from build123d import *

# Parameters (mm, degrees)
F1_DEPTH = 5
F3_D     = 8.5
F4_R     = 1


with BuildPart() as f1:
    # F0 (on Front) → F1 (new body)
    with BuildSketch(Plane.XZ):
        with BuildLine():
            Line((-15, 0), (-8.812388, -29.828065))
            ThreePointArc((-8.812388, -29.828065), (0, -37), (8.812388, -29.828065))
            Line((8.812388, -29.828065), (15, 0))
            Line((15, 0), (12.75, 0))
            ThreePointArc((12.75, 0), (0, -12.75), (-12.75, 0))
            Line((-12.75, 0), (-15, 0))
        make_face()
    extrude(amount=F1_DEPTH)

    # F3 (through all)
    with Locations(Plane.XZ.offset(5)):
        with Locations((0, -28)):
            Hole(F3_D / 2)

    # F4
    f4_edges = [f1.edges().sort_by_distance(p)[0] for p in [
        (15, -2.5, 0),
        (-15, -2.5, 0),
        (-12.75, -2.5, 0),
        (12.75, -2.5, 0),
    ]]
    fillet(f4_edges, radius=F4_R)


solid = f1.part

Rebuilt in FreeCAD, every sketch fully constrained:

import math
import FreeCAD as App
import Part
import Sketcher

V = App.Vector
Q = App.Units.Quantity


def edges_at(feature, points):
    """Names of the edges that pass closest to the given points."""
    edges = feature.Shape.Edges
    near = lambda p: min(range(len(edges)), key=lambda i: edges[i].distToShape(Part.Vertex(*p))[0])
    return sorted({f"Edge{near(p) + 1}" for p in points})

doc = App.newDocument("Part")
params = doc.addObject("Spreadsheet::Sheet", "Params")
for row, (alias, value) in enumerate([
    ("sketch1_radius", "9 mm"),
    ("sketch1_radius2", "12.75 mm"),
    ("pad1_length", "5 mm"),
    ("sketch2_diameter", "8.5 mm"),
    ("hole_diameter", "8.5 mm"),
    ("fillet_radius", "1 mm"),
], start=1):
    params.set(f"A{row}", alias)
    params.set(f"B{row}", "=" + value)
    params.setAlias(f"B{row}", alias)

body = doc.addObject("PartDesign::Body", "Body")

# Sketch on XZ plane
sketch1 = body.newObject("Sketcher::SketchObject", "Sketch")
sketch1.AttachmentSupport = (doc.getObject("XZ_Plane"), [""])
sketch1.MapMode = "FlatFace"
sketch1.addGeometry([
    Part.LineSegment(V(-15, 0, 0), V(-8.8, -29.8, 0)),  # 0
    Part.ArcOfCircle(Part.Circle(V(0, -28, 0), V(0, 0, 1), 9), math.radians(-168), math.radians(-12)),  # 1
    Part.LineSegment(V(8.8, -29.8, 0), V(15, 0, 0)),  # 2
    Part.LineSegment(V(15, 0, 0), V(12.8, 0, 0)),  # 3
    Part.ArcOfCircle(Part.Circle(V(0, 0, 0), V(0, 0, 1), 12.8), math.radians(180), math.radians(360)),  # 4
    Part.LineSegment(V(-12.8, 0, 0), V(-15, 0, 0)),  # 5
], False)
sketch1.addConstraint([
    Sketcher.Constraint("Tangent", 0, 2, 1, 1),
    Sketcher.Constraint("Tangent", 1, 2, 2, 1),
    Sketcher.Constraint("Coincident", 2, 2, 3, 1),
    Sketcher.Constraint("Coincident", 3, 2, 4, 2),
    Sketcher.Constraint("Coincident", 4, 1, 5, 1),
    Sketcher.Constraint("Coincident", 5, 2, 0, 1),
    Sketcher.Constraint("Horizontal", 3),
    Sketcher.Constraint("Horizontal", 5),
    Sketcher.Constraint("Coincident", 4, 3, -1, 1),
    Sketcher.Constraint("Symmetric", 2, 2, 5, 2, -1, 1),
    Sketcher.Constraint("Symmetric", 0, 2, 1, 2, -2),
    Sketcher.Constraint("Radius", 1, Q("9 mm")),
    Sketcher.Constraint("Radius", 4, Q("12.75 mm")),
    Sketcher.Constraint("DistanceY", 1, 3, -1, 1, Q("28 mm")),
    Sketcher.Constraint("DistanceX", -1, 1, 2, 2, Q("15 mm")),
])
sketch1.setExpression("Constraints[11]", "Params.sketch1_radius")
sketch1.setExpression("Constraints[12]", "Params.sketch1_radius2")
pad1 = body.newObject("PartDesign::Pad", "Pad")
pad1.Profile = sketch1
pad1.setExpression("Length", "Params.pad1_length")

# Sketch on XZ plane
sketch2 = body.newObject("Sketcher::SketchObject", "Sketch001")
sketch2.AttachmentSupport = (doc.getObject("XZ_Plane"), [""])
sketch2.MapMode = "FlatFace"
sketch2.AttachmentOffset = App.Placement(V(0, 0, 5), App.Rotation())
sketch2.addGeometry(Part.Circle(V(0, -28, 0), V(0, 0, 1), 4.2), False)
sketch2.addConstraint([
    Sketcher.Constraint("PointOnObject", 0, 3, -2),
    Sketcher.Constraint("Diameter", 0, Q("8.5 mm")),
    Sketcher.Constraint("DistanceY", 0, 3, -1, 1, Q("28 mm")),
])
sketch2.setExpression("Constraints[1]", "Params.sketch2_diameter")
doc.recompute()
hole = body.newObject("PartDesign::Hole", "Hole")
hole.Profile = sketch2
hole.ThreadType = "None"
hole.setExpression("Diameter", "Params.hole_diameter")
hole.DepthType = "ThroughAll"
doc.recompute()

fillet = body.newObject("PartDesign::Fillet", "Fillet")
fillet.Base = (hole, edges_at(hole, [
    (15, -2.5, 0),
    (-15, -2.5, 0),
    (-12.75, -2.5, 0),
    (12.75, -2.5, 0),
]))
fillet.setExpression("Radius", "Params.fillet_radius")

doc.recompute()
